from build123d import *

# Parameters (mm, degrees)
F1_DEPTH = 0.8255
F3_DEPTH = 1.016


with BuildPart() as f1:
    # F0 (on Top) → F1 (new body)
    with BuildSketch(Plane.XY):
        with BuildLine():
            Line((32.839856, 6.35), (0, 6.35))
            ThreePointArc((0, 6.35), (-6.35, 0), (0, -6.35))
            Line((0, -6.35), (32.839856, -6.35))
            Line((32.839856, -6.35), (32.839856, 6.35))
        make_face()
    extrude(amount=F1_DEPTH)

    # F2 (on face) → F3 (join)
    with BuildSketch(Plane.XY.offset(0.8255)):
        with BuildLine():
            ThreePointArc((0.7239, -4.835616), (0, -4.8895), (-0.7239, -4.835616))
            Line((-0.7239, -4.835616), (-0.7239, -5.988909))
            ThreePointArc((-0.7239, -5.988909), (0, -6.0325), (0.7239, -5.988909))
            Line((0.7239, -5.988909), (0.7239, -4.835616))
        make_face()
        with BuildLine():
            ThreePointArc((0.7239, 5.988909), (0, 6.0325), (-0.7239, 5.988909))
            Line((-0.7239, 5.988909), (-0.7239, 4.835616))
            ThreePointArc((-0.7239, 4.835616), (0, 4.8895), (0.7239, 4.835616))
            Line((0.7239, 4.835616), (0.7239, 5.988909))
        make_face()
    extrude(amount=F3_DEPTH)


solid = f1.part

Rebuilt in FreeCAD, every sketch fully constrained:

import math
import FreeCAD as App
import Part
import Sketcher
from FreeCAD import Vector
Q = App.Units.Quantity

doc = App.newDocument("Part")
body = doc.addObject("PartDesign::Body", "Body")

# Sketch on XY plane
sketch1 = doc.addObject("Sketcher::SketchObject", "Sketch")
body.addObject(sketch1)
sketch1.AttachmentSupport = (doc.XY_Plane, [""])
sketch1.MapMode = "FlatFace"
sketch1.addGeometry(Part.LineSegment(Vector(33, 6, 0), Vector(0, 6, 0)), False)
sketch1.addGeometry(Part.ArcOfCircle(Part.Circle(Vector(0, 0, 0), Vector(0, 0, 1), 6), math.radians(90), math.radians(270)), False)
sketch1.addGeometry(Part.LineSegment(Vector(0, -6, 0), Vector(33, -6, 0)), False)
sketch1.addGeometry(Part.LineSegment(Vector(33, -6, 0), Vector(33, 6, 0)), False)
sketch1.addConstraint(Sketcher.Constraint("Tangent", 0, 2, 1, 1))
sketch1.addConstraint(Sketcher.Constraint("Tangent", 1, 2, 2, 1))
sketch1.addConstraint(Sketcher.Constraint("Coincident", 2, 2, 3, 1))
sketch1.addConstraint(Sketcher.Constraint("Coincident", 3, 2, 0, 1))
sketch1.addConstraint(Sketcher.Constraint("Horizontal", 0))
sketch1.addConstraint(Sketcher.Constraint("Horizontal", 2))
sketch1.addConstraint(Sketcher.Constraint("Vertical", 3))
sketch1.addConstraint(Sketcher.Constraint("Coincident", 1, 3, -1, 1))
sketch1.addConstraint(Sketcher.Constraint("Radius", 1, Q("0.25 in")))
sketch1.addConstraint(Sketcher.Constraint("DistanceX", 0, 2, 0, 1, 32.839856))
pad1 = doc.addObject("PartDesign::Pad", "Pad")
body.addObject(pad1)
pad1.Profile = sketch1
pad1.Length = Q("0.0325 in")

# Sketch on XY plane
sketch2 = doc.addObject("Sketcher::SketchObject", "Sketch001")
body.addObject(sketch2)
sketch2.AttachmentSupport = (doc.XY_Plane, [""])
sketch2.MapMode = "FlatFace"
sketch2.AttachmentOffset = App.Placement(Vector(0, 0, 0.0325 * 25.4), App.Rotation())
sketch2.addGeometry(Part.ArcOfCircle(Part.Circle(Vector(0, 0, 0), Vector(0, 0, 1), 4.9), math.radians(-98.51), math.radians(-81.49)), False)
sketch2.addGeometry(Part.LineSegment(Vector(-0.7, -4.8, 0), Vector(-0.7, -6, 0)), False)
sketch2.addGeometry(Part.ArcOfCircle(Part.Circle(Vector(0, 0, 0), Vector(0, 0, 1), 6), math.radians(-96.89), math.radians(-83.11)), False)
sketch2.addGeometry(Part.LineSegment(Vector(0.7, -6, 0), Vector(0.7, -4.8, 0)), False)
sketch2.addGeometry(Part.ArcOfCircle(Part.Circle(Vector(0, 0, 0), Vector(0, 0, 1), 6), math.radians(83.11), math.radians(96.89)), False)
sketch2.addGeometry(Part.LineSegment(Vector(-0.7, 6, 0), Vector(-0.7, 4.8, 0)), False)
sketch2.addGeometry(Part.ArcOfCircle(Part.Circle(Vector(0, 0, 0), Vector(0, 0, 1), 4.9), math.radians(81.49), math.radians(98.51)), False)
sketch2.addGeometry(Part.LineSegment(Vector(0.7, 4.8, 0), Vector(0.7, 6, 0)), False)
sketch2.addConstraint(Sketcher.Constraint("Coincident", 0, 1, 1, 1))
sketch2.addConstraint(Sketcher.Constraint("Coincident", 1, 2, 2, 1))
sketch2.addConstraint(Sketcher.Constraint("Coincident", 2, 2, 3, 1))
sketch2.addConstraint(Sketcher.Constraint("Coincident", 3, 2, 0, 2))
sketch2.addConstraint(Sketcher.Constraint("Coincident", 4, 2, 5, 1))
sketch2.addConstraint(Sketcher.Constraint("Coincident", 5, 2, 6, 2))
sketch2.addConstraint(Sketcher.Constraint("Coincident", 6, 1, 7, 1))
sketch2.addConstraint(Sketcher.Constraint("Coincident", 7, 2, 4, 1))
sketch2.addConstraint(Sketcher.Constraint("Vertical", 1))
sketch2.addConstraint(Sketcher.Constraint("Vertical", 3))
sketch2.addConstraint(Sketcher.Constraint("Vertical", 5))
sketch2.addConstraint(Sketcher.Constraint("Vertical", 7))
sketch2.addConstraint(Sketcher.Constraint("Equal", 2, 4))
sketch2.addConstraint(Sketcher.Constraint("Equal", 0, 6))
sketch2.addConstraint(Sketcher.Constraint("Symmetric", 2, 3, 4, 3, -1, 1))
sketch2.addConstraint(Sketcher.Constraint("Symmetric", 0, 3, 6, 3, -1, 1))
sketch2.addConstraint(Sketcher.Constraint("Symmetric", 1, 2, 2, 2, -2))
sketch2.addConstraint(Sketcher.Constraint("Symmetric", 5, 2, 6, 1, -2))
sketch2.addConstraint(Sketcher.Constraint("Vertical", 1, 2, 4, 2))
sketch2.addConstraint(Sketcher.Constraint("Radius", 0, 4.889528))
sketch2.addConstraint(Sketcher.Constraint("Radius", 2, 6.032568))
sketch2.addConstraint(Sketcher.Constraint("DistanceX", 1, 2, 2, 2, Q("0.057 in")))
sketch2.addConstraint(Sketcher.Constraint("DistanceY", 1, 2, 1, 1, 1.153293))
sketch2.addConstraint(Sketcher.Constraint("DistanceY", 1, 2, -1, 1, 5.988909))
pad2 = doc.addObject("PartDesign::Pad", "Pad001")
body.addObject(pad2)
pad2.Profile = sketch2
pad2.Length = Q("0.04 in")

doc.recompute()
